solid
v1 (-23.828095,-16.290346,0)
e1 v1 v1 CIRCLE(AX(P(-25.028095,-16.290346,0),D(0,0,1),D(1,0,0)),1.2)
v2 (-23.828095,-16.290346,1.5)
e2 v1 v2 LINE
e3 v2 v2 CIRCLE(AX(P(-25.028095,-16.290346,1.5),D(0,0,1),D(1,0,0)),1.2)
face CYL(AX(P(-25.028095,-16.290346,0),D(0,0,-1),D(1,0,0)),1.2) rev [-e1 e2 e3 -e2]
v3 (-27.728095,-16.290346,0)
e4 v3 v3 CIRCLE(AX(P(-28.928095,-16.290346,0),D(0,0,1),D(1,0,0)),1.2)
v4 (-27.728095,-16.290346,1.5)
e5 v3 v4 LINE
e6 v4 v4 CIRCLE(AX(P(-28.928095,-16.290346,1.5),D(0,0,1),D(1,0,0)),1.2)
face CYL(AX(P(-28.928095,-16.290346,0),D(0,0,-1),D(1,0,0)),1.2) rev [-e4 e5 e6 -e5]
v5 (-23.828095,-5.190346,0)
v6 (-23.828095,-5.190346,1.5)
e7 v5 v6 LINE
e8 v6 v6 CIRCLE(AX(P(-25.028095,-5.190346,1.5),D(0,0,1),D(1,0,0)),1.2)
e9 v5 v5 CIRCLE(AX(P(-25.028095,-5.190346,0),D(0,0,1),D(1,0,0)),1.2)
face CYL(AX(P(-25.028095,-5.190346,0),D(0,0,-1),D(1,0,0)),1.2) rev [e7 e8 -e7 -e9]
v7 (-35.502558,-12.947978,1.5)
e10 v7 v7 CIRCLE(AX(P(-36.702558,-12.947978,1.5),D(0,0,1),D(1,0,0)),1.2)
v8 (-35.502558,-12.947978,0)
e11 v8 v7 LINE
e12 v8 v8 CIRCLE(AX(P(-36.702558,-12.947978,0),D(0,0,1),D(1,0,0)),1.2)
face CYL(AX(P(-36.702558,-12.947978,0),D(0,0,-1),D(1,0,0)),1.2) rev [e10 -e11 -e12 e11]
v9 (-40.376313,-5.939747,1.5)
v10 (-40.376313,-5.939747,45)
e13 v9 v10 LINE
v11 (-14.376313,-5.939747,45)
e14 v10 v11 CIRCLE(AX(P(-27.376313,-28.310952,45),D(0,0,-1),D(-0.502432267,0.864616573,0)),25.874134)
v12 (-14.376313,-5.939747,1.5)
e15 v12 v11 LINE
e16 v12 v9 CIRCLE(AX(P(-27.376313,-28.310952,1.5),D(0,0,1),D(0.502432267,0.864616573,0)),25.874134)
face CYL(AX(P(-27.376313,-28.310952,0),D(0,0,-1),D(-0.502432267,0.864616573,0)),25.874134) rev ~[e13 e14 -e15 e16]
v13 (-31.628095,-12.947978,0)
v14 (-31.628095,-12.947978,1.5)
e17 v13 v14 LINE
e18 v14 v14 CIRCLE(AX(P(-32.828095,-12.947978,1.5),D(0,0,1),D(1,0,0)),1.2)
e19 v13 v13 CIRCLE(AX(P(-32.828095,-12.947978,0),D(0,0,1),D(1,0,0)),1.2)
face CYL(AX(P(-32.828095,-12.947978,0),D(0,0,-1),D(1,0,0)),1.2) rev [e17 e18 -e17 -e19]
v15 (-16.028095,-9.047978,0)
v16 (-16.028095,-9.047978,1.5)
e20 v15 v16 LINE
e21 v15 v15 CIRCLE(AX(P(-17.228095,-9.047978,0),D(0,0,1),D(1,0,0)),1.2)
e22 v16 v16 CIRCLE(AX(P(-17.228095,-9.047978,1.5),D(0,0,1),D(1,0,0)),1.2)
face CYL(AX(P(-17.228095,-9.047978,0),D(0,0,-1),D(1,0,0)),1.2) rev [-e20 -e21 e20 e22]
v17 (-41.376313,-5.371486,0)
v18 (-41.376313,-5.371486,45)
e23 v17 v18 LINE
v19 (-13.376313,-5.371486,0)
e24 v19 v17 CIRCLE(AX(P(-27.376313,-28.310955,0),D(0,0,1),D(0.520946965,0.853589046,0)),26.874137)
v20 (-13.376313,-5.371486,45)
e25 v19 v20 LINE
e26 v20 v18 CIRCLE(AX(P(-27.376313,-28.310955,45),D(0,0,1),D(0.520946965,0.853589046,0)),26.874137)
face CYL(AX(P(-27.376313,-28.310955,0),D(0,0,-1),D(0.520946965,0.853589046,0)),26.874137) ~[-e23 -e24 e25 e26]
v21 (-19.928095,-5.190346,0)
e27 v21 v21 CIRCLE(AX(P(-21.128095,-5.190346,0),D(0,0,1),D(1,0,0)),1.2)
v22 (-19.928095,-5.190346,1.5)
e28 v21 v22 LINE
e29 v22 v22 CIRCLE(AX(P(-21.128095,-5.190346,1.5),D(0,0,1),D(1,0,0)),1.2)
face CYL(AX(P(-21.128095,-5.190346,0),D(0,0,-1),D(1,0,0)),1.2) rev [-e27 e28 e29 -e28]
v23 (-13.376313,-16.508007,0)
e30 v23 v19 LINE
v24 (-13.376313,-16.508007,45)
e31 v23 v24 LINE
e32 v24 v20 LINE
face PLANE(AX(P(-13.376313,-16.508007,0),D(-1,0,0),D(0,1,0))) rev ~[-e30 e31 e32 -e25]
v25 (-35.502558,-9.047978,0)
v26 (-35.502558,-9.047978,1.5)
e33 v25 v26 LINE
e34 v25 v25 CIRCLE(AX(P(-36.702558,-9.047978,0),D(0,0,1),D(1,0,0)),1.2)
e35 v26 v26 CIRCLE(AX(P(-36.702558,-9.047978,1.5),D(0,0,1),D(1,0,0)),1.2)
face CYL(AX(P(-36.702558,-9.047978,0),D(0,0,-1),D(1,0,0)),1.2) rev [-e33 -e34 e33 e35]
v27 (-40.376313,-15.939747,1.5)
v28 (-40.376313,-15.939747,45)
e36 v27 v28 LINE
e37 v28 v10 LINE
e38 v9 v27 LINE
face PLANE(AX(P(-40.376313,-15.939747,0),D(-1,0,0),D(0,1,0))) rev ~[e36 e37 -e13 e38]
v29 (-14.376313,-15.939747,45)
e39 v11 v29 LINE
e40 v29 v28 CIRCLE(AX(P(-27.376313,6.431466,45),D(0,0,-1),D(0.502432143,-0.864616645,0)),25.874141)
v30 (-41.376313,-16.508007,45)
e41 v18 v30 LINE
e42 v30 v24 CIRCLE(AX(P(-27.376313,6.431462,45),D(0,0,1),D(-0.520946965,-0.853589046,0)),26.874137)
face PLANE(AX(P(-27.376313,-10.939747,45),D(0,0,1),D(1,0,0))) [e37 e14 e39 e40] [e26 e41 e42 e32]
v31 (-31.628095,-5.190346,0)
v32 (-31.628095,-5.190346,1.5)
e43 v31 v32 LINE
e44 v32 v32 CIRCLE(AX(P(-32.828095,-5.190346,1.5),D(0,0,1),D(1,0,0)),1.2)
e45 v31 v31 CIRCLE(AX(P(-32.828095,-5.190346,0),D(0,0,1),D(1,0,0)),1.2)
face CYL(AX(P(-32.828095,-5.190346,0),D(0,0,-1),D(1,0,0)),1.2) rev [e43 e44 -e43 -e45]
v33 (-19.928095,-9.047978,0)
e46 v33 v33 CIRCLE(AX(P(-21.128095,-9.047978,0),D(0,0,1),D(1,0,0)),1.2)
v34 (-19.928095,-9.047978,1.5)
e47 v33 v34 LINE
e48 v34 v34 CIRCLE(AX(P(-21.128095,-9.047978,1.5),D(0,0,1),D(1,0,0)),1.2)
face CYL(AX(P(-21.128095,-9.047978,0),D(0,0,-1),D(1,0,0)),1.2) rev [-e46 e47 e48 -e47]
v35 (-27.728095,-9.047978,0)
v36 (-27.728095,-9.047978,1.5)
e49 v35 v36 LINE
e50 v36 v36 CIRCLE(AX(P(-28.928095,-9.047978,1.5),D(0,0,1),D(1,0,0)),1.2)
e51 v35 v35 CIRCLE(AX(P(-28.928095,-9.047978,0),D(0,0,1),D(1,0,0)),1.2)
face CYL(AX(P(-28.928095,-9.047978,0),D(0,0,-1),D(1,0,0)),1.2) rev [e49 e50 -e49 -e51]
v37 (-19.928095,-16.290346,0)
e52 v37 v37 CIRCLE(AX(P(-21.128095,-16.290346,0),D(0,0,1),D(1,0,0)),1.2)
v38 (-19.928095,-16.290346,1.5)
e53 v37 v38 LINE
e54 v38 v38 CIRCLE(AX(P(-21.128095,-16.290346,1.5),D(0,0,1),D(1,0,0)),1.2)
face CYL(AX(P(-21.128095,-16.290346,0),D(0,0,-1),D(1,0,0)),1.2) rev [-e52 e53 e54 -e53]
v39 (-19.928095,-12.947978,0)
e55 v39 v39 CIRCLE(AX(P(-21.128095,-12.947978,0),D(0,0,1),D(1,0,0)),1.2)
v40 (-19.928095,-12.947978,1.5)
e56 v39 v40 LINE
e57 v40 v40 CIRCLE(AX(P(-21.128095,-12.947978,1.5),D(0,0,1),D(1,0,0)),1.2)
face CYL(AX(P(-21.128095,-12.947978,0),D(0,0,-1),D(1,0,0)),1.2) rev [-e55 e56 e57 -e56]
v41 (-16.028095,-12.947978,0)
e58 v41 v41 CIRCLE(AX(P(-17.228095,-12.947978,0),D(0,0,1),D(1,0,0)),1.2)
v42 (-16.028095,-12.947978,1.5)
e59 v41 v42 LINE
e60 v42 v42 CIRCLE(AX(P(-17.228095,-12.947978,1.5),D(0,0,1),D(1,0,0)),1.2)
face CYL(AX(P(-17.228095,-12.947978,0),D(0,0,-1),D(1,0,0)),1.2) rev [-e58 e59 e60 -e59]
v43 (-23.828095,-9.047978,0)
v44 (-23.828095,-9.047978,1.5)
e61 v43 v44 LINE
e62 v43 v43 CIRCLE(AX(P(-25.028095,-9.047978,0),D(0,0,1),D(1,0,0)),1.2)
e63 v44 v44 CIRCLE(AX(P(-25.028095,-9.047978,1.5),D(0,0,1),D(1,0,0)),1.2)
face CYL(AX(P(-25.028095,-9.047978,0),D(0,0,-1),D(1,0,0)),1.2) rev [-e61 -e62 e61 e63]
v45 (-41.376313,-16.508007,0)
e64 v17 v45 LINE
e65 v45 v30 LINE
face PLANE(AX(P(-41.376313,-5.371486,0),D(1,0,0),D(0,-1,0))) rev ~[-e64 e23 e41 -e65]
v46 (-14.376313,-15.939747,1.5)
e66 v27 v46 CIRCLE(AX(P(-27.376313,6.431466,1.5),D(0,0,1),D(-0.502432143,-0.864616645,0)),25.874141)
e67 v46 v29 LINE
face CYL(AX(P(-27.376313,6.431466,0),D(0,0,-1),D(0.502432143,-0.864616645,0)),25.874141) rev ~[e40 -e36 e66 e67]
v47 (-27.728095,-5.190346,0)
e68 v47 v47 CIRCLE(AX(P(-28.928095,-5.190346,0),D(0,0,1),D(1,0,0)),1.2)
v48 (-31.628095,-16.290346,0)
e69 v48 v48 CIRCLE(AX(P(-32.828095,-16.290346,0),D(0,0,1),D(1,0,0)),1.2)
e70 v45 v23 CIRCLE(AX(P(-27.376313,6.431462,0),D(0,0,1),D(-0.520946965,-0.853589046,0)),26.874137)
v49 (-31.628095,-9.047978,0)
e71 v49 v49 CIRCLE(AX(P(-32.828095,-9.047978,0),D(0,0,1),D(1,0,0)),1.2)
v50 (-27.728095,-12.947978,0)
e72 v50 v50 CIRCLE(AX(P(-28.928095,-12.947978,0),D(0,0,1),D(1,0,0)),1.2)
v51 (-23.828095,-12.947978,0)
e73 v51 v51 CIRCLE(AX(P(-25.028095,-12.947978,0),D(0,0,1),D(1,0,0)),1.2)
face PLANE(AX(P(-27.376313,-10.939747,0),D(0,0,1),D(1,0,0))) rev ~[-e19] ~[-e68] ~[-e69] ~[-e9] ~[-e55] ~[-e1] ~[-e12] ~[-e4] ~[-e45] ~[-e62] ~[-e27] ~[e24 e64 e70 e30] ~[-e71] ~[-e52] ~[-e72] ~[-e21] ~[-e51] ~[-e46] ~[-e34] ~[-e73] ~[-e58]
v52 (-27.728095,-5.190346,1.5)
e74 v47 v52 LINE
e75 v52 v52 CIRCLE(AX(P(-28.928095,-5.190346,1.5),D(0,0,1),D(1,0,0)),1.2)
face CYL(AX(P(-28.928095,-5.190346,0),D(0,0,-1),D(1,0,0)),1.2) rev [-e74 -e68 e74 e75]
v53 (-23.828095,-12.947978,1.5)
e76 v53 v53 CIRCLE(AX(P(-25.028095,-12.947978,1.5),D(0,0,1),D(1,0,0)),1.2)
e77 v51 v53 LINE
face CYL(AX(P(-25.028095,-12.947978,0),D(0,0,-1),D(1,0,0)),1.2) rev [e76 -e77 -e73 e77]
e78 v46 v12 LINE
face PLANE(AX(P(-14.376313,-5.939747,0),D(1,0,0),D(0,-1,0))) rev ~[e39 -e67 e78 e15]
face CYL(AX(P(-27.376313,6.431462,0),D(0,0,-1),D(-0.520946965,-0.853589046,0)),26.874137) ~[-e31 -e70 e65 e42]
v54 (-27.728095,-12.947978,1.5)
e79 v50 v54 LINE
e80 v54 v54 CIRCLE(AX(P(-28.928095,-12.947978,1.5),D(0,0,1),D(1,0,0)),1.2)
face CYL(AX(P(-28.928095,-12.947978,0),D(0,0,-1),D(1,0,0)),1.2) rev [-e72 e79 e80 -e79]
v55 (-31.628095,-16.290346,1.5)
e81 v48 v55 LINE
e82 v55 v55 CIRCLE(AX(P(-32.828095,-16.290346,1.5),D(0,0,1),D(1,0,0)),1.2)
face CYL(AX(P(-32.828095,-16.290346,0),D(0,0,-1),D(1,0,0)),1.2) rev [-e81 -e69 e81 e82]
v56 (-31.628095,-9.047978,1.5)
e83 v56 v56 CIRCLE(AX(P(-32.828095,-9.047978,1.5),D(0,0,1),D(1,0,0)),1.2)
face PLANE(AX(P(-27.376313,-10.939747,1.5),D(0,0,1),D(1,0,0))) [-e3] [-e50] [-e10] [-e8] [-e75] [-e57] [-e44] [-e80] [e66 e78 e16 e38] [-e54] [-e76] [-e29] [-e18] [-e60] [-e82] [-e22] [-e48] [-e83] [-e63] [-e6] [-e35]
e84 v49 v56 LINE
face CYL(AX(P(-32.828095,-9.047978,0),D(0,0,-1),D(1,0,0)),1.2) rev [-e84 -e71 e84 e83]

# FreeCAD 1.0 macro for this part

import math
import FreeCAD as App
import Part
import Sketcher

doc = App.newDocument("Part")
body = doc.addObject("PartDesign::Body", "Body")

# Sketch on XY plane
sketch1 = body.newObject("Sketcher::SketchObject", "Sketch")
sketch1.AttachmentSupport = (doc.getObject("XY_Plane"), [""])
sketch1.MapMode = "FlatFace"
sketch1.addGeometry([
    Part.LineSegment(App.Vector(-13.376313, -16.508007, 0), App.Vector(-13.376313, -5.371486, 0)),  # 0
    Part.ArcOfCircle(Part.Circle(App.Vector(-27.376313, -28.310955, 0), App.Vector(0, 0, 1), 26.874137), math.radians(58.604207), math.radians(121.395793)),  # 1
    Part.LineSegment(App.Vector(-41.376313, -5.371486, 0), App.Vector(-41.376313, -16.508007, 0)),  # 2
    Part.ArcOfCircle(Part.Circle(App.Vector(-27.376313, 6.431462, 0), App.Vector(0, 0, 1), 26.874137), math.radians(-121.395793), math.radians(-58.604207)),  # 3
    Part.ArcOfCircle(Part.Circle(App.Vector(-27.376313, 6.431466, 0), App.Vector(0, 0, 1), 25.874141), math.radians(-120.16104), math.radians(-59.83896)),  # 4
    Part.LineSegment(App.Vector(-40.376313, -15.939747, 0), App.Vector(-40.376313, -5.939747, 0)),  # 5
    Part.ArcOfCircle(Part.Circle(App.Vector(-27.376313, -28.310952, 0), App.Vector(0, 0, 1), 25.874134), math.radians(59.838952), math.radians(120.161048)),  # 6
    Part.LineSegment(App.Vector(-14.376313, -5.939747, 0), App.Vector(-14.376313, -15.939747, 0)),  # 7
], False)
sketch1.addConstraint([
    Sketcher.Constraint("Coincident", 0, 2, 1, 1),
    Sketcher.Constraint("Coincident", 1, 2, 2, 1),
    Sketcher.Constraint("Coincident", 2, 2, 3, 1),
    Sketcher.Constraint("Coincident", 3, 2, 0, 1),
    Sketcher.Constraint("Coincident", 4, 1, 5, 1),
    Sketcher.Constraint("Coincident", 5, 2, 6, 2),
    Sketcher.Constraint("Coincident", 6, 1, 7, 1),
    Sketcher.Constraint("Coincident", 7, 2, 4, 2),
    Sketcher.Constraint("Vertical", 0),
    Sketcher.Constraint("Vertical", 2),
    Sketcher.Constraint("Vertical", 5),
    Sketcher.Constraint("Vertical", 7),
    Sketcher.Constraint("Coincident", 4, 3, 3, 3),
    Sketcher.Constraint("Coincident", 6, 3, 1, 3),
    Sketcher.Constraint("Equal", 1, 3),
    Sketcher.Constraint("Horizontal", 0, 2, 1, 2),
    Sketcher.Constraint("Horizontal", 2, 2, 3, 2),
    Sketcher.Constraint("Horizontal", 5, 2, 6, 1),
    Sketcher.Constraint("DistanceY", 5, 1, 5, 2, 10.0),
    Sketcher.Constraint("DistanceX", 3, 3, 0, 2, 14.0),
    Sketcher.Constraint("DistanceX", 2, 2, 4, 1, 1.0),
    Sketcher.Constraint("Radius", 4, 25.874141),
    Sketcher.Constraint("Radius", 1, 26.874137),
    Sketcher.Constraint("Radius", 6, 25.874134),
    Sketcher.Constraint("DistanceY", -1, 1, 3, 3, 6.431462),
    Sketcher.Constraint("DistanceX", 1, 3, -1, 1, 27.376313),
])
pad1 = body.newObject("PartDesign::Pad", "Pad")
pad1.Profile = sketch1
pad1.Length = 45

# Sketch on XY plane
sketch2 = body.newObject("Sketcher::SketchObject", "Sketch001")
sketch2.AttachmentSupport = (doc.getObject("XY_Plane"), [""])
sketch2.MapMode = "FlatFace"
sketch2.addGeometry([
    Part.ArcOfCircle(Part.Circle(App.Vector(-27.376313, -28.310952, 0), App.Vector(0, 0, 1), 25.874134), math.radians(59.838952), math.radians(120.161048)),  # 0
    Part.LineSegment(App.Vector(-40.376313, -5.939747, 0), App.Vector(-40.376313, -15.939747, 0)),  # 1
    Part.ArcOfCircle(Part.Circle(App.Vector(-27.376313, 6.431466, 0), App.Vector(0, 0, 1), 25.874141), math.radians(-120.16104), math.radians(-59.83896)),  # 2
    Part.LineSegment(App.Vector(-14.376313, -15.939747, 0), App.Vector(-14.376313, -5.939747, 0)),  # 3
    Part.Circle(App.Vector(-32.828095, -16.290346, 0), App.Vector(0, 0, 1), 1.2),  # 4
    Part.Circle(App.Vector(-28.928095, -16.290346, 0), App.Vector(0, 0, 1), 1.2),  # 5
    Part.Circle(App.Vector(-36.702558, -12.947978, 0), App.Vector(0, 0, 1), 1.2),  # 6
    Part.Circle(App.Vector(-32.828095, -12.947978, 0), App.Vector(0, 0, 1), 1.2),  # 7
    Part.Circle(App.Vector(-28.928095, -12.947978, 0), App.Vector(0, 0, 1), 1.2),  # 8
    Part.Circle(App.Vector(-25.028095, -16.290346, 0), App.Vector(0, 0, 1), 1.2),  # 9
    Part.Circle(App.Vector(-21.128095, -16.290346, 0), App.Vector(0, 0, 1), 1.2),  # 10
    Part.Circle(App.Vector(-25.028095, -12.947978, 0), App.Vector(0, 0, 1), 1.2),  # 11
    Part.Circle(App.Vector(-21.128095, -12.947978, 0), App.Vector(0, 0, 1), 1.2),  # 12
    Part.Circle(App.Vector(-17.228095, -12.947978, 0), App.Vector(0, 0, 1), 1.2),  # 13
    Part.Circle(App.Vector(-36.702558, -9.047978, 0), App.Vector(0, 0, 1), 1.2),  # 14
    Part.Circle(App.Vector(-32.828095, -9.047978, 0), App.Vector(0, 0, 1), 1.2),  # 15
    Part.Circle(App.Vector(-28.928095, -9.047978, 0), App.Vector(0, 0, 1), 1.2),  # 16
    Part.Circle(App.Vector(-32.828095, -5.190346, 0), App.Vector(0, 0, 1), 1.2),  # 17
    Part.Circle(App.Vector(-28.928095, -5.190346, 0), App.Vector(0, 0, 1), 1.2),  # 18
    Part.Circle(App.Vector(-25.028095, -9.047978, 0), App.Vector(0, 0, 1), 1.2),  # 19
    Part.Circle(App.Vector(-21.128095, -9.047978, 0), App.Vector(0, 0, 1), 1.2),  # 20
    Part.Circle(App.Vector(-17.228095, -9.047978, 0), App.Vector(0, 0, 1), 1.2),  # 21
    Part.Circle(App.Vector(-25.028095, -5.190346, 0), App.Vector(0, 0, 1), 1.2),  # 22
    Part.Circle(App.Vector(-21.128095, -5.190346, 0), App.Vector(0, 0, 1), 1.2),  # 23
], False)
sketch2.addConstraint([
    Sketcher.Constraint("Coincident", 0, 2, 1, 1),
    Sketcher.Constraint("Coincident", 1, 2, 2, 1),
    Sketcher.Constraint("Coincident", 2, 2, 3, 1),
    Sketcher.Constraint("Coincident", 3, 2, 0, 1),
    Sketcher.Constraint("Vertical", 1),
    Sketcher.Constraint("Vertical", 3),
    Sketcher.Constraint("Equal", 4, 5),
    Sketcher.Constraint("Equal", 5, 6),
    Sketcher.Constraint("Equal", 6, 7),
    Sketcher.Constraint("Equal", 7, 8),
    Sketcher.Constraint("Equal", 8, 9),
    Sketcher.Constraint("Equal", 9, 10),
    Sketcher.Constraint("Equal", 10, 11),
    Sketcher.Constraint("Equal", 11, 12),
    Sketcher.Constraint("Equal", 12, 13),
    Sketcher.Constraint("Equal", 13, 14),
    Sketcher.Constraint("Equal", 14, 15),
    Sketcher.Constraint("Equal", 15, 16),
    Sketcher.Constraint("Equal", 16, 17),
    Sketcher.Constraint("Equal", 17, 18),
    Sketcher.Constraint("Equal", 18, 19),
    Sketcher.Constraint("Equal", 19, 20),
    Sketcher.Constraint("Equal", 20, 21),
    Sketcher.Constraint("Equal", 21, 22),
    Sketcher.Constraint("Equal", 22, 23),
    Sketcher.Constraint("Horizontal", 4, 3, 5, 3),
    Sketcher.Constraint("Horizontal", 6, 3, 7, 3),
    Sketcher.Constraint("Horizontal", 7, 3, 8, 3),
    Sketcher.Constraint("Horizontal", 5, 3, 9, 3),
    Sketcher.Constraint("Horizontal", 9, 3, 10, 3),
    Sketcher.Constraint("Horizontal", 8, 3, 11, 3),
    Sketcher.Constraint("Horizontal", 11, 3, 12, 3),
    Sketcher.Constraint("Horizontal", 12, 3, 13, 3),
    Sketcher.Constraint("Horizontal", 14, 3, 15, 3),
    Sketcher.Constraint("Horizontal", 15, 3, 16, 3),
    Sketcher.Constraint("Horizontal", 17, 3, 18, 3),
    Sketcher.Constraint("Horizontal", 16, 3, 19, 3),
    Sketcher.Constraint("Horizontal", 19, 3, 20, 3),
    Sketcher.Constraint("Horizontal", 20, 3, 21, 3),
    Sketcher.Constraint("Horizontal", 18, 3, 22, 3),
    Sketcher.Constraint("Horizontal", 22, 3, 23, 3),
    Sketcher.Constraint("Horizontal", 1, 2, 2, 2),
    Sketcher.Constraint("Horizontal", 0, 2, 3, 2),
    Sketcher.Constraint("Vertical", 4, 3, 7, 3),
    Sketcher.Constraint("Vertical", 5, 3, 8, 3),
    Sketcher.Constraint("Vertical", 9, 3, 11, 3),
    Sketcher.Constraint("Vertical", 10, 3, 12, 3),
    Sketcher.Constraint("Vertical", 6, 3, 14, 3),
    Sketcher.Constraint("Vertical", 7, 3, 15, 3),
    Sketcher.Constraint("Vertical", 8, 3, 16, 3),
    Sketcher.Constraint("Vertical", 15, 3, 17, 3),
    Sketcher.Constraint("Vertical", 16, 3, 18, 3),
    Sketcher.Constraint("Vertical", 11, 3, 19, 3),
    Sketcher.Constraint("Vertical", 12, 3, 20, 3),
    Sketcher.Constraint("Vertical", 13, 3, 21, 3),
    Sketcher.Constraint("Vertical", 19, 3, 22, 3),
    Sketcher.Constraint("Vertical", 20, 3, 23, 3),
    Sketcher.Constraint("Diameter", 4, 2.4),
    Sketcher.Constraint("DistanceY", 1, 2, 1, 1, 10.0),
    Sketcher.Constraint("DistanceX", 4, 3, 5, 3, 3.9),
    Sketcher.Constraint("DistanceX", 5, 3, 9, 3, 3.9),
    Sketcher.Constraint("DistanceX", 9, 3, 10, 3, 3.9),
    Sketcher.Constraint("DistanceX", 12, 3, 13, 3, 3.9),
    Sketcher.Constraint("DistanceY", 6, 3, 14, 3, 3.9),
    Sketcher.Constraint("Radius", 2, 25.874141),
    Sketcher.Constraint("Radius", 0, 25.874134),
    Sketcher.Constraint("DistanceY", 0, 2, 17, 3, 0.749401),
    Sketcher.Constraint("DistanceY", 4, 3, 1, 2, 0.350599),
    Sketcher.Constraint("DistanceX", 6, 3, -1, 1, 36.702558),
    Sketcher.Constraint("DistanceY", 6, 3, -1, 1, 12.947978),
    Sketcher.Constraint("DistanceY", 0, 3, 2, 3, 34.742418),
    Sketcher.Constraint("DistanceX", 4, 3, 0, 3, 5.451782),
    Sketcher.Constraint("DistanceY", 14, 3, 0, 2, 3.108231),
    Sketcher.Constraint("DistanceX", 0, 3, -1, 1, 27.376313),
])
pad2 = body.newObject("PartDesign::Pad", "Pad001")
pad2.Profile = sketch2
pad2.Length = 1.5

doc.recompute()
